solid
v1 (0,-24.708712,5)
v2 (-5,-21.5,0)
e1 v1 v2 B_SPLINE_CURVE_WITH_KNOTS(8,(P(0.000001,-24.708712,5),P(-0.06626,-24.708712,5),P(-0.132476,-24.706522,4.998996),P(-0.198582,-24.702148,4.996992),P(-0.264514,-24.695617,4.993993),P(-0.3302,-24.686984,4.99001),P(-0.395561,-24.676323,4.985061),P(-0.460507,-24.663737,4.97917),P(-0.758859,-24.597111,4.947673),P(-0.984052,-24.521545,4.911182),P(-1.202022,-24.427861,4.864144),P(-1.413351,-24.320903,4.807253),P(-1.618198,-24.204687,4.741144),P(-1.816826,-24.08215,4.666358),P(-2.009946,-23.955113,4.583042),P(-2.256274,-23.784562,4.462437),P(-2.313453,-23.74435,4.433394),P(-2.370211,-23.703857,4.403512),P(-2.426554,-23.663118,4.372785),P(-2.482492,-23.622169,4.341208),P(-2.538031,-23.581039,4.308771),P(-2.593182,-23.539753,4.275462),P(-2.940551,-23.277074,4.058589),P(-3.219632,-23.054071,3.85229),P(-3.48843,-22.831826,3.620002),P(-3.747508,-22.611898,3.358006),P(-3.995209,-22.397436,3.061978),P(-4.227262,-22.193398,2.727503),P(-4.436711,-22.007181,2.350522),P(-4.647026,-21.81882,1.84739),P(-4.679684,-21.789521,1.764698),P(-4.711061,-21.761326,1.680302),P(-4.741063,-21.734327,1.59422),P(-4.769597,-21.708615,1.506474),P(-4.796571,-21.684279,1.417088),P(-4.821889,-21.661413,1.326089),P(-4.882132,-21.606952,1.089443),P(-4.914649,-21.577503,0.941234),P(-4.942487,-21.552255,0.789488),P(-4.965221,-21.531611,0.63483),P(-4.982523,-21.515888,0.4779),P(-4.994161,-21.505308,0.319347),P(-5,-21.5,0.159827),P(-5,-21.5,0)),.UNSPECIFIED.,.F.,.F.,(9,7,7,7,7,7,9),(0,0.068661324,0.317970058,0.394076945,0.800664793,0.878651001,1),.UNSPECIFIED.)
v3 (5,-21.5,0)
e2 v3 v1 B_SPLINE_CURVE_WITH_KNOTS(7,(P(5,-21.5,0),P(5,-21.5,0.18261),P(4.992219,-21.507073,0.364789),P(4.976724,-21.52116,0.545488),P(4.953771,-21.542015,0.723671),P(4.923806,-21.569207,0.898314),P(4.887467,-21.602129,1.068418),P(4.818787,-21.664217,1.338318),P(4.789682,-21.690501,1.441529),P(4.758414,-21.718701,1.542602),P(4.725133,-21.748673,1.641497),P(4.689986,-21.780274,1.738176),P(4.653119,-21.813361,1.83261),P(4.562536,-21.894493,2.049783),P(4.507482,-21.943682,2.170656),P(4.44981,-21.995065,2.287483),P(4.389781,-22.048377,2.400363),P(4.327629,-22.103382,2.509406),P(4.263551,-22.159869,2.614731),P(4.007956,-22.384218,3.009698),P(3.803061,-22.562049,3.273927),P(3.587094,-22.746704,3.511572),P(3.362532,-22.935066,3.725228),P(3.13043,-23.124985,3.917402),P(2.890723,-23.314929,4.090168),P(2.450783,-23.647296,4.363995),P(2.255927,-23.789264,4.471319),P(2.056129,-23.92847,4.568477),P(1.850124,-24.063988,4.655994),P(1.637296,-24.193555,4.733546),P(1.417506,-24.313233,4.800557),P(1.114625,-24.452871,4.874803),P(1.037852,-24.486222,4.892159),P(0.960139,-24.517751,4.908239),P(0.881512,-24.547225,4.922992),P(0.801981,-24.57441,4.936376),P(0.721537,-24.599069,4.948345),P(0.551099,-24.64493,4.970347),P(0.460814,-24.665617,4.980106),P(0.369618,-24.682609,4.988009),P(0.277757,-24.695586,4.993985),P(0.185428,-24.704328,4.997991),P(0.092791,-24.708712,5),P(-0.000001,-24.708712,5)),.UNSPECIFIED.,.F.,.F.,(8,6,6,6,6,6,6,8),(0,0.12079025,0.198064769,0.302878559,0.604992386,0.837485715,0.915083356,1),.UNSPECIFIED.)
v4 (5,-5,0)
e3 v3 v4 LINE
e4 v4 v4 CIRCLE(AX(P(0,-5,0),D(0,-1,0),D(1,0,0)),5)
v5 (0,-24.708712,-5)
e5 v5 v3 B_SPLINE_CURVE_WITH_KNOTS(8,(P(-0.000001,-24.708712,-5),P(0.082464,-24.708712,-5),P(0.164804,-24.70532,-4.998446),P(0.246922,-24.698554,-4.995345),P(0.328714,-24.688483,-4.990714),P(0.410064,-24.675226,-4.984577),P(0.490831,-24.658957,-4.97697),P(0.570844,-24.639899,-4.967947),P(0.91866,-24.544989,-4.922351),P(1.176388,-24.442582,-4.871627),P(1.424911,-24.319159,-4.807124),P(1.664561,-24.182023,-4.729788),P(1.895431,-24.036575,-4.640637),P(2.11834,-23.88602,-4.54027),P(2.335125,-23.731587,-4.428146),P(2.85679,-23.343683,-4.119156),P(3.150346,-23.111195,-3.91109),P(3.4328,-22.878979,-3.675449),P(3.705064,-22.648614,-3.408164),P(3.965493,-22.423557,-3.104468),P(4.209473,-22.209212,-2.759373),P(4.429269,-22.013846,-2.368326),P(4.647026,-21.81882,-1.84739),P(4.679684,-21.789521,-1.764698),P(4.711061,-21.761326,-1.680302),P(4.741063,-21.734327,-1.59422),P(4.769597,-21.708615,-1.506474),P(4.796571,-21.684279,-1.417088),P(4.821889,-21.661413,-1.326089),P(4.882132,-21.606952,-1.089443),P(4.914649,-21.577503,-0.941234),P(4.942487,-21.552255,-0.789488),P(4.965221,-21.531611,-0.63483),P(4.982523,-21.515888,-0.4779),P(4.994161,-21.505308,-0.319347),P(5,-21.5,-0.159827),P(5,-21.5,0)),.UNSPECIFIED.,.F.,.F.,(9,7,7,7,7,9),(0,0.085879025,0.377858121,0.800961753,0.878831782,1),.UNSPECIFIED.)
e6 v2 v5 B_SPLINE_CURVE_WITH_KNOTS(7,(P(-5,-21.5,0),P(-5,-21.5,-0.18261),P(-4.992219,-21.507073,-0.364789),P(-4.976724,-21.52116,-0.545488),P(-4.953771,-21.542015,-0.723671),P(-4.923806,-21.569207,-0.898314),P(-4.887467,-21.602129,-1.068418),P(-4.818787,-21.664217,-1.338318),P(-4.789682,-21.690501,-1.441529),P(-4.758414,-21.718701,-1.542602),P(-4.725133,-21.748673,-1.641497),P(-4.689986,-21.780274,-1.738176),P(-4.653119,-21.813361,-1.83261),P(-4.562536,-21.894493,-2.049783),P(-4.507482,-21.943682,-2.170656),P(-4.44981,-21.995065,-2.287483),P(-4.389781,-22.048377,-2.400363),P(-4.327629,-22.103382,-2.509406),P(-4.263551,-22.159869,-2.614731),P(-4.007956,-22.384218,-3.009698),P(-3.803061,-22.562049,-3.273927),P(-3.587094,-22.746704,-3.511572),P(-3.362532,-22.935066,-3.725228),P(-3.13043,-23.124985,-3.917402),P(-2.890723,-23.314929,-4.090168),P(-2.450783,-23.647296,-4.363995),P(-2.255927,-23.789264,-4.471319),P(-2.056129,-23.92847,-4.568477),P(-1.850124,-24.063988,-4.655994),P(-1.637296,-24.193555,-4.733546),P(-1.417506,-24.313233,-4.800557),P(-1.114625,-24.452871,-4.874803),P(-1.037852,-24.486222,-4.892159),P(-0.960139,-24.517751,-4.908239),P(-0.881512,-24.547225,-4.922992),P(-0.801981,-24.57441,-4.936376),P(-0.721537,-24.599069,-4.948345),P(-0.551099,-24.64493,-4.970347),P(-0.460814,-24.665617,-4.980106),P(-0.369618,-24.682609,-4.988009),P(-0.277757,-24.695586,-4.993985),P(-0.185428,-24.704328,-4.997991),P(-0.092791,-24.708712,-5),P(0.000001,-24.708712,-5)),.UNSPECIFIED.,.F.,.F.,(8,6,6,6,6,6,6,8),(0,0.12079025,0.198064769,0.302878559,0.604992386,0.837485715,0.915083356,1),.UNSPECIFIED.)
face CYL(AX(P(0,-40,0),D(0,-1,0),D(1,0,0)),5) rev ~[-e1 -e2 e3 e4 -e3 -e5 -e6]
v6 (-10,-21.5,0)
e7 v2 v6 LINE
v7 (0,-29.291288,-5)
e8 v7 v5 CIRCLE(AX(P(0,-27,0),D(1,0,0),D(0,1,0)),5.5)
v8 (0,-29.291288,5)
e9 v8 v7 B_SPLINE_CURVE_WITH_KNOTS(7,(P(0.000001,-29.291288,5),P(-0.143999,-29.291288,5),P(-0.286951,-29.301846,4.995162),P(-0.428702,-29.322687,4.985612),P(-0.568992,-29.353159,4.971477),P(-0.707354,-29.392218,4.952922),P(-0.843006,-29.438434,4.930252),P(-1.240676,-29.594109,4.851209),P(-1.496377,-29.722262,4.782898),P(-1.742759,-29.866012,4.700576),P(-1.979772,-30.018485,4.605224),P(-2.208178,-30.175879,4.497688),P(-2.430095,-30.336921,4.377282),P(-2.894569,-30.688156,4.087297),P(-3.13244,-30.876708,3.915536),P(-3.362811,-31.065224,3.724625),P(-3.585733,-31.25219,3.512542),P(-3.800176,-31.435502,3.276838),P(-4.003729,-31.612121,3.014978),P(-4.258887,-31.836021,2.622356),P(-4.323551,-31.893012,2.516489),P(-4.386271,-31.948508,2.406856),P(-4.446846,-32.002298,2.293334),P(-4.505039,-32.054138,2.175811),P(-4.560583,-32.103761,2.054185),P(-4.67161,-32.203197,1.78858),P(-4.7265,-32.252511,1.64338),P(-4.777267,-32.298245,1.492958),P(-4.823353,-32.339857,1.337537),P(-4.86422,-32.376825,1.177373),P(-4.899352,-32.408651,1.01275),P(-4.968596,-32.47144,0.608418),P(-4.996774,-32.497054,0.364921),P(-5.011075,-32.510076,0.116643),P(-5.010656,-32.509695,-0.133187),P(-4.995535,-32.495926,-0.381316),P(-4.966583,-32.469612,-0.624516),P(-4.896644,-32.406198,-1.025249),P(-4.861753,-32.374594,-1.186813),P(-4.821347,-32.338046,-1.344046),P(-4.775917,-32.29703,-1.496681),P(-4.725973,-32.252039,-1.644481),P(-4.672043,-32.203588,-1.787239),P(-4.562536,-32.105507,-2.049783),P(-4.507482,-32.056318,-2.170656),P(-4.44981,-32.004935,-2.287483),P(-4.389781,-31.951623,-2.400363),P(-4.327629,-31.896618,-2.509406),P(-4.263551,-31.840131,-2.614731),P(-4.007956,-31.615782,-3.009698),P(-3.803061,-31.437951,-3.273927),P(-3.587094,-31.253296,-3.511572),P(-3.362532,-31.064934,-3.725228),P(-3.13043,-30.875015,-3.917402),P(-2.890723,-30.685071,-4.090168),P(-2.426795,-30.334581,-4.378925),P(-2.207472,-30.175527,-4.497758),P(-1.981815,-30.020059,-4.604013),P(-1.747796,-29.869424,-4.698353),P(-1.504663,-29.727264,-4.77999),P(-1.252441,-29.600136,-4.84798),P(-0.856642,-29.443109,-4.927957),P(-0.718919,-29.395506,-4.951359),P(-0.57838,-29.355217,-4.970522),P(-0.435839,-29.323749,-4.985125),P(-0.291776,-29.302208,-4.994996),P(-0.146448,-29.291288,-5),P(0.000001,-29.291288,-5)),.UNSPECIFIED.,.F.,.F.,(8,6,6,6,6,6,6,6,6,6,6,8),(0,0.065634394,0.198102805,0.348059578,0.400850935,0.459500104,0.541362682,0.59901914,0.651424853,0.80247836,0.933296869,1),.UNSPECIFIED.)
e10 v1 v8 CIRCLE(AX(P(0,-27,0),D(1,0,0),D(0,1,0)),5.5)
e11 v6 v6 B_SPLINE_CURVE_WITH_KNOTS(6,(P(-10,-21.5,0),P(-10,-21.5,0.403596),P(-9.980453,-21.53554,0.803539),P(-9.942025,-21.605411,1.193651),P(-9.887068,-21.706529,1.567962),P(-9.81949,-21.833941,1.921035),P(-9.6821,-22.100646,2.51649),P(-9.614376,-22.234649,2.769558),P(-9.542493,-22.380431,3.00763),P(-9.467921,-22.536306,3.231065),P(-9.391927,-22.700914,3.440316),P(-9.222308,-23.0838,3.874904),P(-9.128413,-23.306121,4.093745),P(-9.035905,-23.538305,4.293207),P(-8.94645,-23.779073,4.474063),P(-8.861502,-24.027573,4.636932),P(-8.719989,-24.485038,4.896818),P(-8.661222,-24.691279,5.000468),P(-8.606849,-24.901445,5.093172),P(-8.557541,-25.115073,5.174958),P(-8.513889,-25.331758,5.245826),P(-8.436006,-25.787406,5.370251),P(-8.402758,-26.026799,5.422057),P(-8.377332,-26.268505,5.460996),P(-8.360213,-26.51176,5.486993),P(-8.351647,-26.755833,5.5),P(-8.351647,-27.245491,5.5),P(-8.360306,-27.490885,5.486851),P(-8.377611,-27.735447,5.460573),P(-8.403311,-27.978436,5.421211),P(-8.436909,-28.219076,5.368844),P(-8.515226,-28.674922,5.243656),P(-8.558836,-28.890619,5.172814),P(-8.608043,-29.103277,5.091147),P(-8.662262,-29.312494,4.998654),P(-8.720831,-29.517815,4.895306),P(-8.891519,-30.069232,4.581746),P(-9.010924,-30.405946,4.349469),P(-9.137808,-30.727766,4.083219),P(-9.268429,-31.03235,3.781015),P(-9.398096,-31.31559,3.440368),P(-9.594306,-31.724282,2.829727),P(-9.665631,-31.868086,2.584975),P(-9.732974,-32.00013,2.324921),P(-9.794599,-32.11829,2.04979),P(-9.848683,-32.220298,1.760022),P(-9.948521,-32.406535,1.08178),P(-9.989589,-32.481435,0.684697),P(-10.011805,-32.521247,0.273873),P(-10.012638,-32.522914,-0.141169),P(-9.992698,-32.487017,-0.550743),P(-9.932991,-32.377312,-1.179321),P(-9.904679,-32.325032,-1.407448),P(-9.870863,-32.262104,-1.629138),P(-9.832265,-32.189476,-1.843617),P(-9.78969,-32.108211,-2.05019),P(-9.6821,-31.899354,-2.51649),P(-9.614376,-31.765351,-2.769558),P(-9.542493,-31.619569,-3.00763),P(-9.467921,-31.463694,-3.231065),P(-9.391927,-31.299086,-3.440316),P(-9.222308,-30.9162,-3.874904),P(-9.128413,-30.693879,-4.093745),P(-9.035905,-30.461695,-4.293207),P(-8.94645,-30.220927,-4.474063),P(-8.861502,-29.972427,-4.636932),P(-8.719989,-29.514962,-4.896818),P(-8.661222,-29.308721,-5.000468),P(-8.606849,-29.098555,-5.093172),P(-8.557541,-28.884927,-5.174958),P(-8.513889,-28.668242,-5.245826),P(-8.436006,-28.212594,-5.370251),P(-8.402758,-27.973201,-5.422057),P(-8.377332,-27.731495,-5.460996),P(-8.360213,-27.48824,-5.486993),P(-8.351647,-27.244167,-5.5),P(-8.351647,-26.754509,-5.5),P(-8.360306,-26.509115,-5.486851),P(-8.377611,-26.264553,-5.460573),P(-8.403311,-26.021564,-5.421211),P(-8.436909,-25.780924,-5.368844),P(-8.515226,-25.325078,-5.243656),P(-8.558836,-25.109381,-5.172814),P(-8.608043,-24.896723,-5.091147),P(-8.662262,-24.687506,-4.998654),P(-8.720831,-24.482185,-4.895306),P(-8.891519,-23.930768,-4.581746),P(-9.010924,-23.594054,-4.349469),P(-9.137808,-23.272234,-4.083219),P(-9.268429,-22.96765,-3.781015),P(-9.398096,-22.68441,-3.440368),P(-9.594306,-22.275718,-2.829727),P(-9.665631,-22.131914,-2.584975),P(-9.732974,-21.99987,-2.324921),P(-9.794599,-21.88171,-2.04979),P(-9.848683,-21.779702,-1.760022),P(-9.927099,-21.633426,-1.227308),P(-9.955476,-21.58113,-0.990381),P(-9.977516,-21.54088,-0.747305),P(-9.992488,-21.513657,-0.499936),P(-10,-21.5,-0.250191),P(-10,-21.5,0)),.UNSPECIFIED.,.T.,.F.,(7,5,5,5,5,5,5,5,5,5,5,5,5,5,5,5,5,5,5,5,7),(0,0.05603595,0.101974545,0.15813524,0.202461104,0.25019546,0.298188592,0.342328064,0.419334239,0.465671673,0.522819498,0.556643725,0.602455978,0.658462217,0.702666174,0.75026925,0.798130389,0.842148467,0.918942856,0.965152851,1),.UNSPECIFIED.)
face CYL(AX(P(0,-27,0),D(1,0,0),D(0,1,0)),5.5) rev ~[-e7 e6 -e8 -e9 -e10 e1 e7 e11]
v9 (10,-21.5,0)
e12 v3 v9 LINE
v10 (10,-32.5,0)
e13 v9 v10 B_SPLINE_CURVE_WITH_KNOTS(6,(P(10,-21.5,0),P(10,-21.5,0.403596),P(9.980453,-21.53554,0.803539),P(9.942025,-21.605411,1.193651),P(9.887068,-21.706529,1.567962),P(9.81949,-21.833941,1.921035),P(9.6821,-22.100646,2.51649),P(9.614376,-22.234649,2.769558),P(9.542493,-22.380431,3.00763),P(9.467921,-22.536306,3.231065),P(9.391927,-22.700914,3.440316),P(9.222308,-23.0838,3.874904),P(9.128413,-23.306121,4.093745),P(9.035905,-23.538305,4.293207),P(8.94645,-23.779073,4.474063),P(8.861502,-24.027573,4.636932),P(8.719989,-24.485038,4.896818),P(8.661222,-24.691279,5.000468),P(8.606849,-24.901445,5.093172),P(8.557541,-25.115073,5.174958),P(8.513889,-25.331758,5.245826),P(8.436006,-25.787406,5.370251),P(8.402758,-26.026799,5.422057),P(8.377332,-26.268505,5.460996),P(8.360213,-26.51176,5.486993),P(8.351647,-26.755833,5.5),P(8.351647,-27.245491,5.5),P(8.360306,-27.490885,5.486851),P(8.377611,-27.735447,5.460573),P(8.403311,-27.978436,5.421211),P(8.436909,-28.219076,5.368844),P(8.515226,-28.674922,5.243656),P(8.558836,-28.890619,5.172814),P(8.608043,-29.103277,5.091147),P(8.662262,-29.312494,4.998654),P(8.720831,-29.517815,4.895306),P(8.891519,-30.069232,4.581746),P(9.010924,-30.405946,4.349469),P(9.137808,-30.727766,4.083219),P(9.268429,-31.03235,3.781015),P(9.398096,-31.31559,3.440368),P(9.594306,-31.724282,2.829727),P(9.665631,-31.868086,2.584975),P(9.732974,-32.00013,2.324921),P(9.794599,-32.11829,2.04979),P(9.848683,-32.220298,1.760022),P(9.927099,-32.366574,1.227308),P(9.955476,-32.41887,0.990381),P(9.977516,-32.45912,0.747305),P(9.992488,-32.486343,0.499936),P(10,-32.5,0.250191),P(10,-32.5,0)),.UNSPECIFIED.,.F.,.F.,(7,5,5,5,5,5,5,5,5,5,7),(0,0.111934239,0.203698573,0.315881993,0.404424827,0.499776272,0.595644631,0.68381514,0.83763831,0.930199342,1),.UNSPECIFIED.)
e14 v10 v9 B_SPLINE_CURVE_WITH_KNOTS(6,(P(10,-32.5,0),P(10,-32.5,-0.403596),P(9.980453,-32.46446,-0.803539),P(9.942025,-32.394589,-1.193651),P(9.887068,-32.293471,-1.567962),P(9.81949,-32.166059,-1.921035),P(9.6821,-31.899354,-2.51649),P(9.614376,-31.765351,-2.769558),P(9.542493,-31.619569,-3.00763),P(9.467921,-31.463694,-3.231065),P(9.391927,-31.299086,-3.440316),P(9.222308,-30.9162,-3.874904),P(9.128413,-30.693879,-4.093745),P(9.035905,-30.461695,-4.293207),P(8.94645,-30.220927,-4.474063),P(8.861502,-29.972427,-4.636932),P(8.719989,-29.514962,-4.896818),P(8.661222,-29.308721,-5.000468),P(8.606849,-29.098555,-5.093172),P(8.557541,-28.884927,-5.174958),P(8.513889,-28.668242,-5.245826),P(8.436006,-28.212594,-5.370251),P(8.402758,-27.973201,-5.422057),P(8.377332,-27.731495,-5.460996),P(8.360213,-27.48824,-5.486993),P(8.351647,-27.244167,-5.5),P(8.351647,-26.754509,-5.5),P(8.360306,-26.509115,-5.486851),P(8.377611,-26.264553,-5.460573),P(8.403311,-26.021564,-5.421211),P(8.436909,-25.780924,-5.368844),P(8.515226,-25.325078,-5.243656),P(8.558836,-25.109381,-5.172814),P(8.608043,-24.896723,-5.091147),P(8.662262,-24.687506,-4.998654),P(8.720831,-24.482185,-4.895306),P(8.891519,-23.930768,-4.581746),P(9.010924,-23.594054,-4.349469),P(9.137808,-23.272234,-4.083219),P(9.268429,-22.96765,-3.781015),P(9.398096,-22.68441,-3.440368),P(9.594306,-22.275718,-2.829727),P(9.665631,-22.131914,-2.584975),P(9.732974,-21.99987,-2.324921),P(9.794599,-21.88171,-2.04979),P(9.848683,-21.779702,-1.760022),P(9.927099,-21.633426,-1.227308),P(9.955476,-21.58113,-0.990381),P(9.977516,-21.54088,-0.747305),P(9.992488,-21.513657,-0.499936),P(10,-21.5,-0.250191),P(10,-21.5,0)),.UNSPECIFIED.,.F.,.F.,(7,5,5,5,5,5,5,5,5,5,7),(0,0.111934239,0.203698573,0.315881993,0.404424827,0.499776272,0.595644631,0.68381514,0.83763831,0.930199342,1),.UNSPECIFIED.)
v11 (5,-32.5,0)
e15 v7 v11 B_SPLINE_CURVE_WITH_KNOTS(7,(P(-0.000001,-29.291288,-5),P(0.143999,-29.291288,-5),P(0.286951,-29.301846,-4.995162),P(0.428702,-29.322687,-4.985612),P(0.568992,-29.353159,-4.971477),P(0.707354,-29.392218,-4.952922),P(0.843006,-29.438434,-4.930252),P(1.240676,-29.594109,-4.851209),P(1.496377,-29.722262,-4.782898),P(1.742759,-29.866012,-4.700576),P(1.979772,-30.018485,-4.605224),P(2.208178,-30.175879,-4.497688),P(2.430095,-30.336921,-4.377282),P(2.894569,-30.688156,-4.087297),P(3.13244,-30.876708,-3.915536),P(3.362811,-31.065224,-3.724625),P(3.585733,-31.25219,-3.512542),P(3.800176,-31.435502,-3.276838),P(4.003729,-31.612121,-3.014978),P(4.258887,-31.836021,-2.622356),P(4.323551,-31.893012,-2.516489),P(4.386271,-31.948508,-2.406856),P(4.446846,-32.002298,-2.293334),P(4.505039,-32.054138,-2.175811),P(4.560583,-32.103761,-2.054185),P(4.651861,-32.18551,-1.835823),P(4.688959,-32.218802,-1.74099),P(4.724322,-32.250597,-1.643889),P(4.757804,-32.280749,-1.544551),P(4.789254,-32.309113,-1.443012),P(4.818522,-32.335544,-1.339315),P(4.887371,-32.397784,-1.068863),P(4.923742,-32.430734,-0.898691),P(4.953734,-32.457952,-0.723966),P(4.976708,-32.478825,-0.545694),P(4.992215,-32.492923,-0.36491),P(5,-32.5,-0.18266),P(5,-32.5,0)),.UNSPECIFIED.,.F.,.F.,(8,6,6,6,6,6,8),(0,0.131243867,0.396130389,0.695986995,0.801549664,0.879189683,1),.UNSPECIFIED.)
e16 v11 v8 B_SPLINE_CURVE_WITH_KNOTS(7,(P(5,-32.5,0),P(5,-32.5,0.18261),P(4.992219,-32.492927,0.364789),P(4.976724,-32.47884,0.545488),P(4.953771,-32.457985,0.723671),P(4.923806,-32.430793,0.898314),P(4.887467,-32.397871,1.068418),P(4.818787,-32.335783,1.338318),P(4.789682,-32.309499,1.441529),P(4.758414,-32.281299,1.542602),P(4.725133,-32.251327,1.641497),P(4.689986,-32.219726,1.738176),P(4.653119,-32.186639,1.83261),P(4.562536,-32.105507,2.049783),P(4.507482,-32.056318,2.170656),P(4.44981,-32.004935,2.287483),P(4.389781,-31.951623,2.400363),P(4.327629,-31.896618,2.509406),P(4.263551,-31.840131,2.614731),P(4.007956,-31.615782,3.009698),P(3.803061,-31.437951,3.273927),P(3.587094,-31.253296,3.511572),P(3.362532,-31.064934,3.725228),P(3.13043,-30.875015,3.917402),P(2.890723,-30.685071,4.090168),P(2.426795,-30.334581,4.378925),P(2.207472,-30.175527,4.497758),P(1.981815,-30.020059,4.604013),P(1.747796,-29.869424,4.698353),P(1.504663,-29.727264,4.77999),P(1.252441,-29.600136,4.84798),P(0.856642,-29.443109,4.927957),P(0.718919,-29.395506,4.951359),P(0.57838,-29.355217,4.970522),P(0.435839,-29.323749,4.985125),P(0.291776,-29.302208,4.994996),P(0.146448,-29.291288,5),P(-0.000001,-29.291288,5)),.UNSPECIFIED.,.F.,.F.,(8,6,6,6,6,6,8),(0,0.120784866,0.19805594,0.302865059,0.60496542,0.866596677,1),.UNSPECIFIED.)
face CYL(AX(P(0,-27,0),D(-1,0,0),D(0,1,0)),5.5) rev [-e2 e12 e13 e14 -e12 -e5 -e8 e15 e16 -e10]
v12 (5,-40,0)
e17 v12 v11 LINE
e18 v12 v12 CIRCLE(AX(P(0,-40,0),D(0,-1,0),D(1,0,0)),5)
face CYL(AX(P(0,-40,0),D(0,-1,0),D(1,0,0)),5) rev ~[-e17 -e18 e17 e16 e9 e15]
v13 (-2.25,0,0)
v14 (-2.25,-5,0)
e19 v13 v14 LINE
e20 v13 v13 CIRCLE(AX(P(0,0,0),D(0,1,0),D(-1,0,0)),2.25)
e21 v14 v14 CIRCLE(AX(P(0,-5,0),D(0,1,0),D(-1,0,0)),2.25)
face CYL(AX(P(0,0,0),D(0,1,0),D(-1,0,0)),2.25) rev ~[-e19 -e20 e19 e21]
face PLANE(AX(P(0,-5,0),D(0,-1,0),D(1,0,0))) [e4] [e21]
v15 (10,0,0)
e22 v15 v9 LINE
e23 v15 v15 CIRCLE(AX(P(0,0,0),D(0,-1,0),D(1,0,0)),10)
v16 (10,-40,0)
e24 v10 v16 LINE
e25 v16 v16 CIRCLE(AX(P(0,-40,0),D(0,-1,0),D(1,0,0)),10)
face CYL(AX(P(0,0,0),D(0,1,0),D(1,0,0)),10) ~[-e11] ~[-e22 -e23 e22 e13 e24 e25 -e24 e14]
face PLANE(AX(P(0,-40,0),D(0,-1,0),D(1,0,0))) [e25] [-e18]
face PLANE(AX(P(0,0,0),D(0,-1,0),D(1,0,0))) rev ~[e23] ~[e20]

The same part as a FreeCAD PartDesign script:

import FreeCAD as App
import Part
import Sketcher
from FreeCAD import Vector
Q = App.Units.Quantity

doc = App.newDocument("Part")
body = doc.addObject("PartDesign::Body", "Body")

# Sketch on XZ plane
sketch1 = doc.addObject("Sketcher::SketchObject", "Sketch")
body.addObject(sketch1)
sketch1.AttachmentSupport = (doc.XZ_Plane, [""])
sketch1.MapMode = "FlatFace"
sketch1.addGeometry(Part.Circle(Vector(0, 0, 0), Vector(0, 0, 1), 10), False)
sketch1.addConstraint([
    Sketcher.Constraint("Coincident", 0, 3, -1, 1),
    Sketcher.Constraint("Diameter", 0, Q("20 mm")),
])
pad1 = doc.addObject("PartDesign::Pad", "Pad")
body.addObject(pad1)
pad1.Profile = sketch1
pad1.Length = 40

# Sketch on XZ plane
sketch2 = doc.addObject("Sketcher::SketchObject", "Sketch001")
body.addObject(sketch2)
sketch2.AttachmentSupport = (doc.XZ_Plane, [""])
sketch2.MapMode = "FlatFace"
sketch2.addGeometry(Part.Circle(Vector(0, 0, 0), Vector(0, 0, 1), 2.2), False)
sketch2.addConstraint([
    Sketcher.Constraint("Coincident", 0, 3, -1, 1),
    Sketcher.Constraint("Diameter", 0, Q("4.5 mm")),
])
pocket1 = doc.addObject("PartDesign::Pocket", "Pocket")
body.addObject(pocket1)
pocket1.Profile = sketch2
pocket1.Type = "ThroughAll"
pocket1.Reversed = True

# Sketch on XZ plane
sketch3 = doc.addObject("Sketcher::SketchObject", "Sketch002")
body.addObject(sketch3)
sketch3.AttachmentSupport = (doc.XZ_Plane, [""])
sketch3.MapMode = "FlatFace"
sketch3.AttachmentOffset = App.Placement(Vector(0, 0, 40), App.Rotation())
sketch3.addGeometry(Part.Circle(Vector(0, 0, 0), Vector(0, 0, 1), 5), False)
sketch3.addConstraint([
    Sketcher.Constraint("Coincident", 0, 3, -1, 1),
    Sketcher.Constraint("Diameter", 0, Q("10 mm")),
])
pocket2 = doc.addObject("PartDesign::Pocket", "Pocket001")
body.addObject(pocket2)
pocket2.Profile = sketch3
pocket2.Length = 35

# Sketch on YZ plane
sketch4 = doc.addObject("Sketcher::SketchObject", "Sketch003")
body.addObject(sketch4)
sketch4.AttachmentSupport = (doc.YZ_Plane, [""])
sketch4.MapMode = "FlatFace"
sketch4.addGeometry(Part.Circle(Vector(-27, 0, 0), Vector(0, 0, 1), 6), False)
sketch4.addConstraint([
    Sketcher.Constraint("PointOnObject", 0, 3, -1),
    Sketcher.Constraint("Diameter", 0, Q("11 mm")),
    Sketcher.Constraint("DistanceX", 0, 3, -1, 1, Q("27 mm")),
])
pocket3 = doc.addObject("PartDesign::Pocket", "Pocket002")
body.addObject(pocket3)
pocket3.Profile = sketch4
pocket3.Type = "ThroughAll"
pocket3.Midplane = True

doc.recompute()
